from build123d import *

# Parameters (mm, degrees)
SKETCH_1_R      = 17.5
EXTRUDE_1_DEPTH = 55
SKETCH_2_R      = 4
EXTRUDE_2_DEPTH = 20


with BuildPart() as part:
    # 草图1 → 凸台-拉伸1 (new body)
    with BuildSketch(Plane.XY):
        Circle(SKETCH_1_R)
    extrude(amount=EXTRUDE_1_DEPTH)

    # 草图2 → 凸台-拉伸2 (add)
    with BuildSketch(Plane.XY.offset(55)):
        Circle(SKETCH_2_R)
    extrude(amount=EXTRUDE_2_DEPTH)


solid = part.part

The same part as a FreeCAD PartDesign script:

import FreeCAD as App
import Part
import Sketcher
from FreeCAD import Vector
Q = App.Units.Quantity

doc = App.newDocument("Part")
body = doc.addObject("PartDesign::Body", "Body")

# Sketch on XY plane
sketch1 = body.newObject("Sketcher::SketchObject", "Sketch")
sketch1.AttachmentSupport = (doc.getObject("XY_Plane"), [""])
sketch1.MapMode = "FlatFace"
sketch1.addGeometry(Part.Circle(Vector(0, 0, 0), Vector(0, 0, 1), 18), False)
sketch1.addConstraint([
    Sketcher.Constraint("Coincident", 0, 3, -1, 1),
    Sketcher.Constraint("Diameter", 0, Q("35 mm")),
])
pad1 = body.newObject("PartDesign::Pad", "Pad")
pad1.Profile = sketch1
pad1.Length = 55

# Sketch on XY plane
sketch2 = body.newObject("Sketcher::SketchObject", "Sketch001")
sketch2.AttachmentSupport = (doc.getObject("XY_Plane"), [""])
sketch2.MapMode = "FlatFace"
sketch2.AttachmentOffset = App.Placement(Vector(0, 0, 55), App.Rotation())
sketch2.addGeometry(Part.Circle(Vector(0, 0, 0), Vector(0, 0, 1), 4), False)
sketch2.addConstraint([
    Sketcher.Constraint("Coincident", 0, 3, -1, 1),
    Sketcher.Constraint("Diameter", 0, Q("8 mm")),
])
pad2 = body.newObject("PartDesign::Pad", "Pad001")
pad2.Profile = sketch2
pad2.Length = 20

doc.recompute()
